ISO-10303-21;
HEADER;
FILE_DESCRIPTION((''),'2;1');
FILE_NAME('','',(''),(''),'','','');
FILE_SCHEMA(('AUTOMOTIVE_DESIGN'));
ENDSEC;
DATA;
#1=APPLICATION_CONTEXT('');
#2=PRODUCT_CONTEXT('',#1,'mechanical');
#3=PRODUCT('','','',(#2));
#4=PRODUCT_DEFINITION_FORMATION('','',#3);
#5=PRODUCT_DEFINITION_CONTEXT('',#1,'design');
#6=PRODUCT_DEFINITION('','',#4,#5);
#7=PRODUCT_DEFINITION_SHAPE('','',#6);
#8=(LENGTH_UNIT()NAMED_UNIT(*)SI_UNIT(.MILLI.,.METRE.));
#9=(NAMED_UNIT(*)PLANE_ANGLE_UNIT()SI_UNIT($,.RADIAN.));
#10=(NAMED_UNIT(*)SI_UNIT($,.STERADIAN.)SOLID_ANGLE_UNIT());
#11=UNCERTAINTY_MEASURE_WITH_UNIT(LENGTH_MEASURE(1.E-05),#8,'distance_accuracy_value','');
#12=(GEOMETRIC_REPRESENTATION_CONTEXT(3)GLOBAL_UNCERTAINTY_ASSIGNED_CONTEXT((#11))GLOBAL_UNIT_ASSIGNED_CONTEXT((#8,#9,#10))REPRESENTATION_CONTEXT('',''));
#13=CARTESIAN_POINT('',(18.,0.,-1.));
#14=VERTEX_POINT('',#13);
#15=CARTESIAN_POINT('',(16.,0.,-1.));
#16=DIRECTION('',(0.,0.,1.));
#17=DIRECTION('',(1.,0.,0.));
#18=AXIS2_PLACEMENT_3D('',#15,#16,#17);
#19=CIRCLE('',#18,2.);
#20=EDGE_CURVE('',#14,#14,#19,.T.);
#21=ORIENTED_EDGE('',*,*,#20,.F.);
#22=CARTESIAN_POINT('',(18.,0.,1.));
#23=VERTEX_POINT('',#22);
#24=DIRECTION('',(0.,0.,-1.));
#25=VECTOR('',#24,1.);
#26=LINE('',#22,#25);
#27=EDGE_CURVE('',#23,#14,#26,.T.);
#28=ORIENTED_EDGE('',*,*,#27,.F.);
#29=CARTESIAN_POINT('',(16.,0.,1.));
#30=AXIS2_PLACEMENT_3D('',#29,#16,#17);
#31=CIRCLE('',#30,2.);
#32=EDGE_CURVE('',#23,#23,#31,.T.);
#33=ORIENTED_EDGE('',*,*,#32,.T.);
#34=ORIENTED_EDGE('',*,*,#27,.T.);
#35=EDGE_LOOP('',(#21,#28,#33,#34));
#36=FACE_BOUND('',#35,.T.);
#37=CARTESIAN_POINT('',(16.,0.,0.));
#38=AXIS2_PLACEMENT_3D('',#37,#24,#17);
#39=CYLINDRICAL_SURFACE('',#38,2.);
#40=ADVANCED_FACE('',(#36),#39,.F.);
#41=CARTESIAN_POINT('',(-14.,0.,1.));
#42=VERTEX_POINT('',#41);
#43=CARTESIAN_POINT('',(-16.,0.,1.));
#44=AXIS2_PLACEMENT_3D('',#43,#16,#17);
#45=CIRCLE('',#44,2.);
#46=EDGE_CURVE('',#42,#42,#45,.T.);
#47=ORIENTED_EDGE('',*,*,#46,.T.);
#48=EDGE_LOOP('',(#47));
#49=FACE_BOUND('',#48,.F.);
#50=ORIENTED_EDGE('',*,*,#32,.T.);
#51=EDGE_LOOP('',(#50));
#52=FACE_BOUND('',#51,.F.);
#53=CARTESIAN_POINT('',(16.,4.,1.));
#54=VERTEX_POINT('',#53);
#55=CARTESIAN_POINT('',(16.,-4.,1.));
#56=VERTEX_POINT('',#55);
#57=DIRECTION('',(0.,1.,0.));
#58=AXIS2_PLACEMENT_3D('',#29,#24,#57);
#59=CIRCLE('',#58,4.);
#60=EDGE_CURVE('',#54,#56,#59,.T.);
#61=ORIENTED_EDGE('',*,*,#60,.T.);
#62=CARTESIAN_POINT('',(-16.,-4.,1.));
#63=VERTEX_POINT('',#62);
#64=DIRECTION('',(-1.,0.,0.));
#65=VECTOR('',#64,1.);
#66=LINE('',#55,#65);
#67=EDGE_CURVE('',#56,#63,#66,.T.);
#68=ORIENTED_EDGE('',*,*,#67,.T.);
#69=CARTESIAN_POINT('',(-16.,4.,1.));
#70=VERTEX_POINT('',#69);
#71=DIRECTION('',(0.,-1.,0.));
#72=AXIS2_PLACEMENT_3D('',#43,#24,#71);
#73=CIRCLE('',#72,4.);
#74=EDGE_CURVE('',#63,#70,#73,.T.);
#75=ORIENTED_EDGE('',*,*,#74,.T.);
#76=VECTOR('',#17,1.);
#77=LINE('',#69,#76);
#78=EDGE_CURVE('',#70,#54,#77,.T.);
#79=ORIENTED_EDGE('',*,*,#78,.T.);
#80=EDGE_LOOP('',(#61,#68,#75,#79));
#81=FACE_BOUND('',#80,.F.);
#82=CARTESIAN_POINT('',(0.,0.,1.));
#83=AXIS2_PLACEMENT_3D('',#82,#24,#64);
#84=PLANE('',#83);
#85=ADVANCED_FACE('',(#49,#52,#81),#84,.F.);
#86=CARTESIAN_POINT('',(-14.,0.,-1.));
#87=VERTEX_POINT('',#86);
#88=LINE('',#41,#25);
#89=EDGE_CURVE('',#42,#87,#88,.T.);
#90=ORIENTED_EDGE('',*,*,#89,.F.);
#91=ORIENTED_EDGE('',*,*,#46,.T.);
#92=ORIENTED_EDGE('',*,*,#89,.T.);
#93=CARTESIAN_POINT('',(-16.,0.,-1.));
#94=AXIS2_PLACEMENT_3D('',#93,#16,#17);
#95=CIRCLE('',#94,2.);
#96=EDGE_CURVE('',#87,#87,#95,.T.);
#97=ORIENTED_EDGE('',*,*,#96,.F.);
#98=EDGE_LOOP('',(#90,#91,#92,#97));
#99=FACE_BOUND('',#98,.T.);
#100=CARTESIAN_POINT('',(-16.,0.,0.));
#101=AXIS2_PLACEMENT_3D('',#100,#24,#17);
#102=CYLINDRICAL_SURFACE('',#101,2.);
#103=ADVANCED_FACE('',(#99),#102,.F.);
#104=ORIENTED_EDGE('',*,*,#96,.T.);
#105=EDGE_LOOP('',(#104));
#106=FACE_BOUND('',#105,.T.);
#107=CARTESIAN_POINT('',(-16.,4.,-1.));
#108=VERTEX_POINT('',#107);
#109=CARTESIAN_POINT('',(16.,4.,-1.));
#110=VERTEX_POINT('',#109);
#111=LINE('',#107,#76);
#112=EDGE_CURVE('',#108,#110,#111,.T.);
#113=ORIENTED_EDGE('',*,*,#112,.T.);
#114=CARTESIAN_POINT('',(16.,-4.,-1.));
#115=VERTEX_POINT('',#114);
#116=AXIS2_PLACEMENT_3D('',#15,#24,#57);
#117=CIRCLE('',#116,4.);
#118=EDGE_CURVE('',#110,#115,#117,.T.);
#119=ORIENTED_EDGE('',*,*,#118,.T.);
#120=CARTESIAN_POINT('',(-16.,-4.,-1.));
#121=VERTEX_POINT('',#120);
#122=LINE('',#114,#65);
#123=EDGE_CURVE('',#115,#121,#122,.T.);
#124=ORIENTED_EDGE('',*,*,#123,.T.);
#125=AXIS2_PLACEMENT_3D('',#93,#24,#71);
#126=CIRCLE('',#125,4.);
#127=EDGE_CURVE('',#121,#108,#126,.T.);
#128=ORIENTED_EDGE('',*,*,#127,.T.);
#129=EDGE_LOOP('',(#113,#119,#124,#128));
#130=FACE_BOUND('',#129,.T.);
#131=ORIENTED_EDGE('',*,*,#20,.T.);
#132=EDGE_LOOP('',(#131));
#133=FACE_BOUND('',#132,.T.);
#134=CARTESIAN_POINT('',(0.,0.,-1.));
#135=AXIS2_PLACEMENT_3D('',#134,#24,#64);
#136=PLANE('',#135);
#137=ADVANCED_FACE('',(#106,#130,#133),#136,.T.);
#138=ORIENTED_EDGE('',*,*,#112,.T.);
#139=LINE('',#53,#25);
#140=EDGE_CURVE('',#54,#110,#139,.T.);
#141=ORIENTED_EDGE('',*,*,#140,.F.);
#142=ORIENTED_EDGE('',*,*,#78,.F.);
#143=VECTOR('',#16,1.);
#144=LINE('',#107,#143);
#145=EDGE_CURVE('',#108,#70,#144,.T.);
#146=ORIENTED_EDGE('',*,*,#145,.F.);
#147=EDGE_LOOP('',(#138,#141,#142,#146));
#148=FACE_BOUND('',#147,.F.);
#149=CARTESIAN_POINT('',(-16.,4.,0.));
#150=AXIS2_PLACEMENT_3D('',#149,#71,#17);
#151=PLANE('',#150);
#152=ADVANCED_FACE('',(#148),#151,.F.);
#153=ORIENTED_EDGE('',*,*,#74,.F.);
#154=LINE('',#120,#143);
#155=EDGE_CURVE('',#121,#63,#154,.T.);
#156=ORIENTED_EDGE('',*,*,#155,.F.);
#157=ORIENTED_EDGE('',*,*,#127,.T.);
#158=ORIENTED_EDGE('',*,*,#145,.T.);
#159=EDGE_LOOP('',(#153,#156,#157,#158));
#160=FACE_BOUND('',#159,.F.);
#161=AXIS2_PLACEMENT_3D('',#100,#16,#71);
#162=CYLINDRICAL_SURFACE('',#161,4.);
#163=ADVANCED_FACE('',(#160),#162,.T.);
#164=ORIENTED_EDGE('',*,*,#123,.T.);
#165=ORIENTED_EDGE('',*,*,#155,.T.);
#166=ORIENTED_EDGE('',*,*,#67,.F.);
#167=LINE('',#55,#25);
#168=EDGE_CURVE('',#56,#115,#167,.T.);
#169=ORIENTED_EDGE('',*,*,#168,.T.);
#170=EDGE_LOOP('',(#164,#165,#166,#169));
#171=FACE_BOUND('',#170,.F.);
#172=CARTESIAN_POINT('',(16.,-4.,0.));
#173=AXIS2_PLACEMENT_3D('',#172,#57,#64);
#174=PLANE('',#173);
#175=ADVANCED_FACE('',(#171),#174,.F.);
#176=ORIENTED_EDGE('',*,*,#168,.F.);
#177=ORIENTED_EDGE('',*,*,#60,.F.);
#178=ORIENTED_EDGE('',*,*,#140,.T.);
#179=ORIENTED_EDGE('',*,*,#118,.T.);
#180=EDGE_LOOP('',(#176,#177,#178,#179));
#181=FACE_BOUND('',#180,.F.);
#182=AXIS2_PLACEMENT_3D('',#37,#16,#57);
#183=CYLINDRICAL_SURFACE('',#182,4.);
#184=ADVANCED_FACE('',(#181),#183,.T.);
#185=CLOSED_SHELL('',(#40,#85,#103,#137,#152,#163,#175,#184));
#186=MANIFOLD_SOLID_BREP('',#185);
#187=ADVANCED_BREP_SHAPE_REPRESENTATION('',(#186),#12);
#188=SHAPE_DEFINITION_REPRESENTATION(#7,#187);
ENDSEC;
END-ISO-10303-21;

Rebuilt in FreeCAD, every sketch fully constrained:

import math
import FreeCAD as App
import Part
import Sketcher
from FreeCAD import Vector
Q = App.Units.Quantity

doc = App.newDocument("Part")
body = doc.addObject("PartDesign::Body", "Body")

sketch1 = doc.addObject("Sketcher::SketchObject", "Sketch")
body.addObject(sketch1)
sketch1.AttachmentSupport = (doc.XY_Plane, [""])
sketch1.MapMode = "FlatFace"
sketch1.addGeometry(Part.LineSegment(Vector(16, 4, 0), Vector(-16, 4, 0)), False)
sketch1.addGeometry(Part.ArcOfCircle(Part.Circle(Vector(-16, 0, 0), Vector(0, 0, 1), 4), math.radians(90), math.radians(270)), False)
sketch1.addGeometry(Part.LineSegment(Vector(-16, -4, 0), Vector(16, -4, 0)), False)
sketch1.addGeometry(Part.ArcOfCircle(Part.Circle(Vector(16, 0, 0), Vector(0, 0, 1), 4), math.radians(-90), math.radians(90)), False)
sketch1.addGeometry(Part.Circle(Vector(16, 0, 0), Vector(0, 0, 1), 2), False)
sketch1.addGeometry(Part.Circle(Vector(-16, 0, 0), Vector(0, 0, 1), 2), False)
sketch1.addConstraint(Sketcher.Constraint("Tangent", 0, 2, 1, 1))
sketch1.addConstraint(Sketcher.Constraint("Tangent", 1, 2, 2, 1))
sketch1.addConstraint(Sketcher.Constraint("Tangent", 2, 2, 3, 1))
sketch1.addConstraint(Sketcher.Constraint("Tangent", 3, 2, 0, 1))
sketch1.addConstraint(Sketcher.Constraint("Horizontal", 0))
sketch1.addConstraint(Sketcher.Constraint("Horizontal", 2))
sketch1.addConstraint(Sketcher.Constraint("Coincident", 4, 3, 3, 3))
sketch1.addConstraint(Sketcher.Constraint("Coincident", 5, 3, 1, 3))
sketch1.addConstraint(Sketcher.Constraint("Equal", 4, 5))
sketch1.addConstraint(Sketcher.Constraint("Symmetric", 1, 3, 3, 3, -1, 1))
sketch1.addConstraint(Sketcher.Constraint("Diameter", 4, Q("4 mm")))
sketch1.addConstraint(Sketcher.Constraint("Radius", 1, Q("4 mm")))
sketch1.addConstraint(Sketcher.Constraint("DistanceX", 0, 2, 0, 1, Q("32 mm")))
pad1 = doc.addObject("PartDesign::Pad", "Pad")
body.addObject(pad1)
pad1.Profile = sketch1
pad1.Length = 2
pad1.Midplane = True

doc.recompute()
